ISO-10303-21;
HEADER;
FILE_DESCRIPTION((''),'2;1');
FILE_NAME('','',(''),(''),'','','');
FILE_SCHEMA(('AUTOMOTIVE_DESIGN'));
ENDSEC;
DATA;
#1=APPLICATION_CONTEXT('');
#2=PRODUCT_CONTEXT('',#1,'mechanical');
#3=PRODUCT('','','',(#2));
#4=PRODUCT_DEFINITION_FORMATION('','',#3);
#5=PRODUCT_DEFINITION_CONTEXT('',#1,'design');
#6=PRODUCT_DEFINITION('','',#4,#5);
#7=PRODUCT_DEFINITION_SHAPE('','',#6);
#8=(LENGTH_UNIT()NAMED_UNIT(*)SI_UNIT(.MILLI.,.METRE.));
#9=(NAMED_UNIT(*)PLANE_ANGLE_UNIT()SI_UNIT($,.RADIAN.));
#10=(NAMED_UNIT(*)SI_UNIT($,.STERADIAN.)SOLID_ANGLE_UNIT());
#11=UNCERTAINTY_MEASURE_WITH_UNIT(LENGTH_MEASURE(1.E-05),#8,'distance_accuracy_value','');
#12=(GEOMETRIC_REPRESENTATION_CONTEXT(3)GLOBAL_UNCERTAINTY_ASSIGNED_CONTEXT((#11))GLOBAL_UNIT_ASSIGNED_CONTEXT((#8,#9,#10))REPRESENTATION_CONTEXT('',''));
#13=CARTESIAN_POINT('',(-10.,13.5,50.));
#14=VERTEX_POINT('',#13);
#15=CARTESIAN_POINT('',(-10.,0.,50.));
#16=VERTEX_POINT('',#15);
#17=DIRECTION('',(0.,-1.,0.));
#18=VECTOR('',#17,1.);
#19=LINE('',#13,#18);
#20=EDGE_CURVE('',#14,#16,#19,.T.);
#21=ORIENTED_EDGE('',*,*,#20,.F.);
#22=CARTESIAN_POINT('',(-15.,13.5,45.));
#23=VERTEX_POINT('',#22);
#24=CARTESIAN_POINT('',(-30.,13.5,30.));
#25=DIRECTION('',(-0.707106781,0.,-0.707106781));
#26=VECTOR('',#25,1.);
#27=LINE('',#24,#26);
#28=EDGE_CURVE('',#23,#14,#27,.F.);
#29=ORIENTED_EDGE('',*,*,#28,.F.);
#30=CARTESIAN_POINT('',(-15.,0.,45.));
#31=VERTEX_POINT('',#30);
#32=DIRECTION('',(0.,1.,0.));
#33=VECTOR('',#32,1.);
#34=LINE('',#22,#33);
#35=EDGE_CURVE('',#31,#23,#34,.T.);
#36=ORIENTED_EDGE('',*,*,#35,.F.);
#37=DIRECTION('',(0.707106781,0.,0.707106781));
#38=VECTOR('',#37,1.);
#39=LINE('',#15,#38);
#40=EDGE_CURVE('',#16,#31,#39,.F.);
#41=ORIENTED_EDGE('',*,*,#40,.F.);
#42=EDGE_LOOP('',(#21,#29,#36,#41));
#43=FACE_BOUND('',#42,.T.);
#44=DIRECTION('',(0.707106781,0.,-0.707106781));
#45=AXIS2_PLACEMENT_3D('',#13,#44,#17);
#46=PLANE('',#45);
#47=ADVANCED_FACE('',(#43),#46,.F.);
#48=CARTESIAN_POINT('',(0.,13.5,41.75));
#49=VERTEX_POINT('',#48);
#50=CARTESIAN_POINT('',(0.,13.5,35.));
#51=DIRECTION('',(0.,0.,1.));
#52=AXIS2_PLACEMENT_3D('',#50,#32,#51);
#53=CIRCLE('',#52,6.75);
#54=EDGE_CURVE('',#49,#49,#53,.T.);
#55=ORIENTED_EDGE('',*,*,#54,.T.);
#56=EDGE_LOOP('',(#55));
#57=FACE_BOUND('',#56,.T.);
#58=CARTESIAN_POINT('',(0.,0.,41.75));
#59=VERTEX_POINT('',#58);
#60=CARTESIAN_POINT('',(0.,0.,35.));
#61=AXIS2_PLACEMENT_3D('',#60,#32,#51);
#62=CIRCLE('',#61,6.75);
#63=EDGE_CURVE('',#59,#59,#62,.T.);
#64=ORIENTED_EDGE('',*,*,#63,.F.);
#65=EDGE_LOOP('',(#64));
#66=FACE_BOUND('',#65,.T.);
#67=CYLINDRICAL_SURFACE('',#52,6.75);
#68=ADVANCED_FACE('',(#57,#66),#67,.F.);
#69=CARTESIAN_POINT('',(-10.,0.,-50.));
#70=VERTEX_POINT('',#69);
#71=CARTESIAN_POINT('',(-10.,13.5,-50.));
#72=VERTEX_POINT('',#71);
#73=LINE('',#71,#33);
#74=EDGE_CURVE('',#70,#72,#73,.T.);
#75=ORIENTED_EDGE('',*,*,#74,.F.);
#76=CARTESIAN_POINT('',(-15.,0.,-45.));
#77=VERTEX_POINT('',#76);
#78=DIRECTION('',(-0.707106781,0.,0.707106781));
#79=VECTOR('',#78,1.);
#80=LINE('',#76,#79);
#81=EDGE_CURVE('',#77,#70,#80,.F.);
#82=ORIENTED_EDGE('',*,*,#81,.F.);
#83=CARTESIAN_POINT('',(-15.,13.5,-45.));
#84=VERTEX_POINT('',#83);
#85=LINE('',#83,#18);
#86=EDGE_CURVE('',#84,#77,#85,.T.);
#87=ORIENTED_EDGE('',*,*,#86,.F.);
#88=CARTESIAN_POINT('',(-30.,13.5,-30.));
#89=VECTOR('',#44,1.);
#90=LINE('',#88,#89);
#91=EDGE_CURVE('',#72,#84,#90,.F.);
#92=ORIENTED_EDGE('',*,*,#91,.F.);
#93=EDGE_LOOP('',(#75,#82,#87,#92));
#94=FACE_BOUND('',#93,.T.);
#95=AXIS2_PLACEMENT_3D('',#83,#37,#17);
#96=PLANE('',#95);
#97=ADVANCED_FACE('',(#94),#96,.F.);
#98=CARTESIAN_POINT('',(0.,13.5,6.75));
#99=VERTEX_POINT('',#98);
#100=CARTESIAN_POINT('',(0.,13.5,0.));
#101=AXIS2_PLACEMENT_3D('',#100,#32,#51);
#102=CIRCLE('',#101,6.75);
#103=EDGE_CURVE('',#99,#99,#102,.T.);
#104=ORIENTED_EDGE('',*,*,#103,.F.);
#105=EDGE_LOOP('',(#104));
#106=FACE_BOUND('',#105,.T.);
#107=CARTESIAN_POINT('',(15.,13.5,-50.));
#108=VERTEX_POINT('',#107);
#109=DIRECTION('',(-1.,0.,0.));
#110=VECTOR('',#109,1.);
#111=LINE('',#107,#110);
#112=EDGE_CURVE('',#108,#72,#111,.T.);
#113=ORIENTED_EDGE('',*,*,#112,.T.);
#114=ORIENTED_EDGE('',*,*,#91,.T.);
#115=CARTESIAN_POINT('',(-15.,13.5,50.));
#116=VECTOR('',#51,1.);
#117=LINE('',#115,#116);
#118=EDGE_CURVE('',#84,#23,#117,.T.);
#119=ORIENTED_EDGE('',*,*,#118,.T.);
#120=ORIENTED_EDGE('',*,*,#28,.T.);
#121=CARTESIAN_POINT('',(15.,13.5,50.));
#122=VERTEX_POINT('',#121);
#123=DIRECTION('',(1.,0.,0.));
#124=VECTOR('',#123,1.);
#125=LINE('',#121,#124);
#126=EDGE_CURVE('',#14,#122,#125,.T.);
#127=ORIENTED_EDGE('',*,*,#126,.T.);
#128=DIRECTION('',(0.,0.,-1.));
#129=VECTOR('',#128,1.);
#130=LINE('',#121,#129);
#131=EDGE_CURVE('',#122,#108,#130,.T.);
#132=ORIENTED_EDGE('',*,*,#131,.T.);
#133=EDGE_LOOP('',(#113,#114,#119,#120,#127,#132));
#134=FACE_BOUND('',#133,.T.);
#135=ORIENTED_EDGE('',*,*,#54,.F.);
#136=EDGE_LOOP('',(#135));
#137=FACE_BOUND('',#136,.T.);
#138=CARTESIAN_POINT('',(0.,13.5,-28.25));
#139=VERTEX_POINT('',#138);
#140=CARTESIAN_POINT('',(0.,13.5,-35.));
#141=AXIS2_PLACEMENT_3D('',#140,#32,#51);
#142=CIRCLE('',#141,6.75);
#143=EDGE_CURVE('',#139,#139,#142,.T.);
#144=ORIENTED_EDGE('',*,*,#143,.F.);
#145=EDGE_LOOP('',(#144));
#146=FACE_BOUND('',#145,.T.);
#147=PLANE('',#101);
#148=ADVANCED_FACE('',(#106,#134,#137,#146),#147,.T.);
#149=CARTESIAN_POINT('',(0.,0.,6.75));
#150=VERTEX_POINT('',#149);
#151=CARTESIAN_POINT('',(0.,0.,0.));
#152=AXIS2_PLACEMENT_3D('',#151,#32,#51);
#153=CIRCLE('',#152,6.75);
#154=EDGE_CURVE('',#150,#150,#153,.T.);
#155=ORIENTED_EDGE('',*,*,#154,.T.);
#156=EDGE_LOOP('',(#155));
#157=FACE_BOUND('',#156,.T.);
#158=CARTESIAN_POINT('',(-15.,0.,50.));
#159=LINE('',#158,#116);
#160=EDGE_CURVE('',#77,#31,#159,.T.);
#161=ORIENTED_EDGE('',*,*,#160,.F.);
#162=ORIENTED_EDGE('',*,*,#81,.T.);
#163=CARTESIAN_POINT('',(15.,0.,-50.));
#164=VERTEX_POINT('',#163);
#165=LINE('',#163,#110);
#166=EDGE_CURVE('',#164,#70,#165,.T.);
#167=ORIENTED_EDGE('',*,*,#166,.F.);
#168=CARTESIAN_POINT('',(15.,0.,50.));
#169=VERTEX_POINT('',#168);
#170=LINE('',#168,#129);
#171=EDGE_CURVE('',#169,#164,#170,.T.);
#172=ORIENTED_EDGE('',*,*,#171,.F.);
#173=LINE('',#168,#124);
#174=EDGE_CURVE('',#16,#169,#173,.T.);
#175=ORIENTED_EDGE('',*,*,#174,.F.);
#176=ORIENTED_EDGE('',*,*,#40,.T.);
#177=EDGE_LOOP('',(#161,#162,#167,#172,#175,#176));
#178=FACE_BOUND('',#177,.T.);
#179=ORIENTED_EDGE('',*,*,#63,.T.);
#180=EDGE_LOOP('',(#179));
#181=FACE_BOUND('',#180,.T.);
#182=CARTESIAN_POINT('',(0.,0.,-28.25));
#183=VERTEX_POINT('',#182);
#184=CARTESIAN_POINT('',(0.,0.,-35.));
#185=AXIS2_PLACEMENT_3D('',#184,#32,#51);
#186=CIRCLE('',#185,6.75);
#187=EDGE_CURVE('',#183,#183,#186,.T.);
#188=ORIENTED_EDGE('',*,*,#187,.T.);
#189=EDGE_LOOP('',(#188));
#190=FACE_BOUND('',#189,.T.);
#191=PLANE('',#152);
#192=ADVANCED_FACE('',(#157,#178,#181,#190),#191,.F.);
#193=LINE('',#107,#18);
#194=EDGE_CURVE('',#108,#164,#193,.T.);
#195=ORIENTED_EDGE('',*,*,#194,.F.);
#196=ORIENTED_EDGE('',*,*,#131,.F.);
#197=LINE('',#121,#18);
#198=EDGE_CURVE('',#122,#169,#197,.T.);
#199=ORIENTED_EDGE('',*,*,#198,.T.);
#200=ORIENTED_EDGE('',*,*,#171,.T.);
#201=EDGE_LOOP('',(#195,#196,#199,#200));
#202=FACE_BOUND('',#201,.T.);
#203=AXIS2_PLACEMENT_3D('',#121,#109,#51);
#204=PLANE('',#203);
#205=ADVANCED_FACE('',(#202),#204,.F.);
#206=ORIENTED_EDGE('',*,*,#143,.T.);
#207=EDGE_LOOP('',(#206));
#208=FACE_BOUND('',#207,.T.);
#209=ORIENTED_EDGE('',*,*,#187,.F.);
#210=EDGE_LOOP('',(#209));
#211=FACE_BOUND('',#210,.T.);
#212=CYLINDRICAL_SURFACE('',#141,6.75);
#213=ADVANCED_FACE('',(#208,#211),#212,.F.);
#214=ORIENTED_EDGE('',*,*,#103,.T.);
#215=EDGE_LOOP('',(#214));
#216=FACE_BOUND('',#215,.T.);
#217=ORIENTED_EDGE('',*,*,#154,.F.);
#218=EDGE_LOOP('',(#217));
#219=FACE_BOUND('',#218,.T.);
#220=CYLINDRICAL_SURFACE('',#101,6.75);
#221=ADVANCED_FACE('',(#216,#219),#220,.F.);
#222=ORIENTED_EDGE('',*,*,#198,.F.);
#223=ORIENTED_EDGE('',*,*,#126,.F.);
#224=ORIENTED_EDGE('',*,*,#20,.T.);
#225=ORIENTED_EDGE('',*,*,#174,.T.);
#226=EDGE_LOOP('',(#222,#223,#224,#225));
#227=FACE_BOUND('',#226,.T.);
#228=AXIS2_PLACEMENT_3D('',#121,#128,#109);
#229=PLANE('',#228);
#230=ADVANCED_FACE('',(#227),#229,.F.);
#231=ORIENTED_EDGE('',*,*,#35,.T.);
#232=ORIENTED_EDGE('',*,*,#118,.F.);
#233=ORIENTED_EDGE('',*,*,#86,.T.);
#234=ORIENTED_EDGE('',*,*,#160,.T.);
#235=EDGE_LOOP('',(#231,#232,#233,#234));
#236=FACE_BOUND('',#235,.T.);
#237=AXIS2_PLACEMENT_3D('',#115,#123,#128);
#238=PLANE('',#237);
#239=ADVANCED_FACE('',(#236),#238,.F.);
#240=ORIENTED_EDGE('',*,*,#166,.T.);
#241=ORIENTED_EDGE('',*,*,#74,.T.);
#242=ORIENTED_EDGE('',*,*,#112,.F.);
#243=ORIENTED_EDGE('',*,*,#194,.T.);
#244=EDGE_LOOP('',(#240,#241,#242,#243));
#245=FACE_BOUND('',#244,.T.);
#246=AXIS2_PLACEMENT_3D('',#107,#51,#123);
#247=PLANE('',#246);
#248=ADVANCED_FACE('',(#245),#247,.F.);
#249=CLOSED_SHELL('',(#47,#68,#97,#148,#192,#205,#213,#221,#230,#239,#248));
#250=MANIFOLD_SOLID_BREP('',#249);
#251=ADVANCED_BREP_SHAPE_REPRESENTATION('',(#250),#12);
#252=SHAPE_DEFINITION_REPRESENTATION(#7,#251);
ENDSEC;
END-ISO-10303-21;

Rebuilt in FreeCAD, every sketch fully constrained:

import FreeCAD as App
import Part
import Sketcher
from FreeCAD import Vector
Q = App.Units.Quantity


def edges_at(feature, points):
    """Names of the edges that pass closest to the given points."""
    edges = feature.Shape.Edges
    near = lambda p: min(range(len(edges)), key=lambda i: edges[i].distToShape(Part.Vertex(*p))[0])
    return sorted({f"Edge{near(p) + 1}" for p in points})

doc = App.newDocument("Part")
body = doc.addObject("PartDesign::Body", "Body")

# Sketch on XZ plane
sketch1 = body.newObject("Sketcher::SketchObject", "Sketch")
sketch1.AttachmentSupport = (doc.getObject("XZ_Plane"), [""])
sketch1.MapMode = "FlatFace"
sketch1.addGeometry(Part.LineSegment(Vector(-15, -50, 0), Vector(-15, 50, 0)), False)
sketch1.addGeometry(Part.LineSegment(Vector(-15, 50, 0), Vector(15, 50, 0)), False)
sketch1.addGeometry(Part.LineSegment(Vector(15, 50, 0), Vector(15, -50, 0)), False)
sketch1.addGeometry(Part.LineSegment(Vector(15, -50, 0), Vector(-15, -50, 0)), False)
sketch1.addConstraint(Sketcher.Constraint("Coincident", 0, 2, 1, 1))
sketch1.addConstraint(Sketcher.Constraint("Coincident", 1, 2, 2, 1))
sketch1.addConstraint(Sketcher.Constraint("Coincident", 2, 2, 3, 1))
sketch1.addConstraint(Sketcher.Constraint("Coincident", 3, 2, 0, 1))
sketch1.addConstraint(Sketcher.Constraint("Vertical", 0))
sketch1.addConstraint(Sketcher.Constraint("Horizontal", 1))
sketch1.addConstraint(Sketcher.Constraint("Vertical", 2))
sketch1.addConstraint(Sketcher.Constraint("Horizontal", 3))
sketch1.addConstraint(Sketcher.Constraint("Symmetric", 0, 2, 2, 2, -1, 1))
sketch1.addConstraint(Sketcher.Constraint("DistanceX", 1, 1, 1, 2, Q("30 mm")))
sketch1.addConstraint(Sketcher.Constraint("DistanceY", 0, 1, 0, 2, Q("100 mm")))
pad1 = body.newObject("PartDesign::Pad", "Pad")
pad1.Profile = sketch1
pad1.Length = 13.5
pad1.Reversed = True

# Sketch on XZ plane
sketch2 = body.newObject("Sketcher::SketchObject", "Sketch001")
sketch2.AttachmentSupport = (doc.getObject("XZ_Plane"), [""])
sketch2.MapMode = "FlatFace"
sketch2.AttachmentOffset = App.Placement(Vector(0, 0, -13.5), App.Rotation())
sketch2.addGeometry(Part.Circle(Vector(0, -35, 0), Vector(0, 0, 1), 7), False)
sketch2.addGeometry(Part.Circle(Vector(0, 35, 0), Vector(0, 0, 1), 7), False)
sketch2.addGeometry(Part.Circle(Vector(0, 0, 0), Vector(0, 0, 1), 7), False)
sketch2.addConstraint(Sketcher.Constraint("Coincident", 2, 3, -1, 1))
sketch2.addConstraint(Sketcher.Constraint("Equal", 0, 1))
sketch2.addConstraint(Sketcher.Constraint("Equal", 1, 2))
sketch2.addConstraint(Sketcher.Constraint("Symmetric", 0, 3, 1, 3, -1, 1))
sketch2.addConstraint(Sketcher.Constraint("PointOnObject", 0, 3, -2))
sketch2.addConstraint(Sketcher.Constraint("Diameter", 0, Q("13.5 mm")))
sketch2.addConstraint(Sketcher.Constraint("DistanceY", 0, 3, -1, 1, Q("35 mm")))
doc.recompute()
hole = body.newObject("PartDesign::Hole", "Hole")
hole.Profile = sketch2
hole.ThreadType = "None"
hole.Diameter = 13.5
hole.DepthType = "ThroughAll"
hole.Reversed = True
doc.recompute()

chamfer = body.newObject("PartDesign::Chamfer", "Chamfer")
chamfer.Base = (hole, edges_at(hole, [(-15, 6.75, -50), (-15, 6.75, 50)]))
chamfer.Size = 5

doc.recompute()
